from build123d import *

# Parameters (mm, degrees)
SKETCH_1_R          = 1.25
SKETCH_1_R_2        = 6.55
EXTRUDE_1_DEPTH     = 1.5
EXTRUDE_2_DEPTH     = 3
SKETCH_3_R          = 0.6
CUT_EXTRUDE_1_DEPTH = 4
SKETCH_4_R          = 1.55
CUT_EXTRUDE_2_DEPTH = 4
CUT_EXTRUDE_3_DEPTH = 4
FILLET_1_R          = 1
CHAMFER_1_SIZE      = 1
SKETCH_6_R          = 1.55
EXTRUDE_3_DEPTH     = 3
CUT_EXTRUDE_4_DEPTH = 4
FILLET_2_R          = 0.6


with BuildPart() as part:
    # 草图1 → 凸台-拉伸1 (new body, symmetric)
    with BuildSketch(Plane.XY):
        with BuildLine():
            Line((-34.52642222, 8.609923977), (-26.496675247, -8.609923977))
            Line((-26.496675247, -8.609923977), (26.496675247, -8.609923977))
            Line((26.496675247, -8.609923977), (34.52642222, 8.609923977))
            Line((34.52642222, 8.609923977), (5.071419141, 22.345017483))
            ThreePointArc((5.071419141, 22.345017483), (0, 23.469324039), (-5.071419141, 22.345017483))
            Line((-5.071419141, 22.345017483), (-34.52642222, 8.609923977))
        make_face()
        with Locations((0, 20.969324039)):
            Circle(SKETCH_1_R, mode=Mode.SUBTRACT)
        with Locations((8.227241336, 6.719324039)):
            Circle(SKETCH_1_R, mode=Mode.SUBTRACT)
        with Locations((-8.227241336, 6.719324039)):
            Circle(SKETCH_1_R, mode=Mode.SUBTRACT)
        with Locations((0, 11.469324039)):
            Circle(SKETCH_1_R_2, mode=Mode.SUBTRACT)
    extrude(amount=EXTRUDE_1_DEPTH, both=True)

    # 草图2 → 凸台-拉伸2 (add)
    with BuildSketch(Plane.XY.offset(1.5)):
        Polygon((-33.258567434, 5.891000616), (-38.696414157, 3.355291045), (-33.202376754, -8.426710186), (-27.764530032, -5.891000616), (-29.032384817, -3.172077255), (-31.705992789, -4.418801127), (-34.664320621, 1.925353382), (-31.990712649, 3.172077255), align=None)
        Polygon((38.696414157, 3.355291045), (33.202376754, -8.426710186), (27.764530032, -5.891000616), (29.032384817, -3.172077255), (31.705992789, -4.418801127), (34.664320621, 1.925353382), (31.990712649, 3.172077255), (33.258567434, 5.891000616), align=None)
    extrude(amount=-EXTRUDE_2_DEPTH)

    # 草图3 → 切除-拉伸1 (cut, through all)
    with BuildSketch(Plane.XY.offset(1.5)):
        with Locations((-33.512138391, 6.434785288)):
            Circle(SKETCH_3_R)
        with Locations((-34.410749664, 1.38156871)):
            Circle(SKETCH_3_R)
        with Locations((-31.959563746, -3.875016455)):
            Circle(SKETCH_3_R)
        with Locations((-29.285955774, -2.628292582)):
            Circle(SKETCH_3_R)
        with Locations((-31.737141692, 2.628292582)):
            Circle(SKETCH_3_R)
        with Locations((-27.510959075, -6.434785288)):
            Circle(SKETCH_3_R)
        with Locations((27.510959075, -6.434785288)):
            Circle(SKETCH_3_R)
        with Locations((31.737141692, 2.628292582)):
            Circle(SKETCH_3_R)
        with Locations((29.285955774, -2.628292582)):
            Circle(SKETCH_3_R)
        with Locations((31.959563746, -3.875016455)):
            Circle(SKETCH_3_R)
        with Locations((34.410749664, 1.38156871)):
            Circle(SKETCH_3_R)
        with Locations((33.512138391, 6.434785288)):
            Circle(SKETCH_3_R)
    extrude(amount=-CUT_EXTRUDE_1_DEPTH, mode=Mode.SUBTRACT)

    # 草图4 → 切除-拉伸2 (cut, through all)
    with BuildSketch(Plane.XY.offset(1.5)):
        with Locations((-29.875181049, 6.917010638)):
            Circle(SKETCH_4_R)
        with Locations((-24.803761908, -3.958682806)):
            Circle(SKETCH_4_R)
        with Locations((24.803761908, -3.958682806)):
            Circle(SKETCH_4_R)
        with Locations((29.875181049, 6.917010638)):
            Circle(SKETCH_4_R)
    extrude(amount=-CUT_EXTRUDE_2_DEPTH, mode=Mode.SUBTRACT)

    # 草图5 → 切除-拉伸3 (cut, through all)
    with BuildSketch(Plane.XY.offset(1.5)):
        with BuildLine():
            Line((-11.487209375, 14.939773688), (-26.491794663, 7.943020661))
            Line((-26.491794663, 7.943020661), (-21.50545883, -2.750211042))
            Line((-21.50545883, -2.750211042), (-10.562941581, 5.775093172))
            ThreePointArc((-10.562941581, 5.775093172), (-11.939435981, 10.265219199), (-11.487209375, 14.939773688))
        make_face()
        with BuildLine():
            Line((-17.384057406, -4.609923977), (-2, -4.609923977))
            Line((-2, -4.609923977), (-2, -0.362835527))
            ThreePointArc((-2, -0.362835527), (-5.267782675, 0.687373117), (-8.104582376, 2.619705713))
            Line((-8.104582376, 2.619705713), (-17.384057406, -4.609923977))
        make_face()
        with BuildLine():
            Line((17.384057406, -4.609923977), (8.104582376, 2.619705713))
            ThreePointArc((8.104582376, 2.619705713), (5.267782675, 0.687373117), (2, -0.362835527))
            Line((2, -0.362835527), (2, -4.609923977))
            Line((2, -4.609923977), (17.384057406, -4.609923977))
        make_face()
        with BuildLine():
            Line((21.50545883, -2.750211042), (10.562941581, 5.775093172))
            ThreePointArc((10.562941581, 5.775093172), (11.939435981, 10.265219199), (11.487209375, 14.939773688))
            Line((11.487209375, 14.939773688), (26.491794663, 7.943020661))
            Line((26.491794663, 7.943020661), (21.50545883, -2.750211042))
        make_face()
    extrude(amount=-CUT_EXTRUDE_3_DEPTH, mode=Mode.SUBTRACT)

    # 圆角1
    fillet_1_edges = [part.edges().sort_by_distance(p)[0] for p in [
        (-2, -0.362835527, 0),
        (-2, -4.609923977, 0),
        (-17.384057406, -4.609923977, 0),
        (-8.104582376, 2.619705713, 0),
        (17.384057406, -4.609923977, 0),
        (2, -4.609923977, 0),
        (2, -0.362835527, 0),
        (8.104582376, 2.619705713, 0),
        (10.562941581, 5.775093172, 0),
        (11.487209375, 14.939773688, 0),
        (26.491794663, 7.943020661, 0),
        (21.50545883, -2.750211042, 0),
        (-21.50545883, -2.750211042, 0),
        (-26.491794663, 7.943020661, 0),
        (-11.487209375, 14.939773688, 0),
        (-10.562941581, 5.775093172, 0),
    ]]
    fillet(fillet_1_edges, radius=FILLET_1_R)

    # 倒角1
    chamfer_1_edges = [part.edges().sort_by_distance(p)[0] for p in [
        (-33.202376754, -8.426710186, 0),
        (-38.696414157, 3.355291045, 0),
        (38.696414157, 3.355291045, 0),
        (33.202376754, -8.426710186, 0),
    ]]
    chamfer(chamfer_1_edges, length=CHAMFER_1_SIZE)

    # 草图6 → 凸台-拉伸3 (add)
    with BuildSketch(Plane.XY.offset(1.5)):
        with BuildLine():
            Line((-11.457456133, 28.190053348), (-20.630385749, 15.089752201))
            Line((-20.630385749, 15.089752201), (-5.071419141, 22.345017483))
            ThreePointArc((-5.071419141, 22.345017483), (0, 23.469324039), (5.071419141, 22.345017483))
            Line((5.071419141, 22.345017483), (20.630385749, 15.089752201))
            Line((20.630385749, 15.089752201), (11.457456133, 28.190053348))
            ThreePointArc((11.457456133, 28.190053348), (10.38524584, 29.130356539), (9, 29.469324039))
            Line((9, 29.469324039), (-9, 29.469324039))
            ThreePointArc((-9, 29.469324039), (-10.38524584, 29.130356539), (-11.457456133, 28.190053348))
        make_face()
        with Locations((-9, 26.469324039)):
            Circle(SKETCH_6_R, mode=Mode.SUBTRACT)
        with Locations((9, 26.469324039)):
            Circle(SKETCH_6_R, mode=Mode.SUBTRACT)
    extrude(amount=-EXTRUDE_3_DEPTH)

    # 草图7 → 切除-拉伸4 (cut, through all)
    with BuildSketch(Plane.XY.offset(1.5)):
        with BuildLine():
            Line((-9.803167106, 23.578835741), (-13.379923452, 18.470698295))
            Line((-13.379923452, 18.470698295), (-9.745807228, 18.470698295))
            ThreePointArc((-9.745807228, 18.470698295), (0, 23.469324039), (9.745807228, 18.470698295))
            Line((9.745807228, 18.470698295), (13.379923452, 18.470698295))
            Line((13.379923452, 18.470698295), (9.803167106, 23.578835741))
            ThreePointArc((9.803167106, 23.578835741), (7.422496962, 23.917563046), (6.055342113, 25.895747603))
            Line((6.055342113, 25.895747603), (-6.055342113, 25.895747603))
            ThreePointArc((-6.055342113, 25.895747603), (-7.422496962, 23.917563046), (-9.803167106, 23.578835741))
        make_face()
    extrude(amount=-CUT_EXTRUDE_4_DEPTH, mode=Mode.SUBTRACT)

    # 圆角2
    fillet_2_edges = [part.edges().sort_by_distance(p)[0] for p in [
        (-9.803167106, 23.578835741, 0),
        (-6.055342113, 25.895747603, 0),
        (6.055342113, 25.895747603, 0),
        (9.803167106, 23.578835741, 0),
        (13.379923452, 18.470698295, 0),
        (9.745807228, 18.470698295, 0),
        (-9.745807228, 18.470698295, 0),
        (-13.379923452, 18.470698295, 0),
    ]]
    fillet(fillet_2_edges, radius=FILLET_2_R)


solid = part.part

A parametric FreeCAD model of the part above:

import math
import FreeCAD as App
import Part
import Sketcher

V = App.Vector
Q = App.Units.Quantity


def edges_at(feature, points):
    """Names of the edges that pass closest to the given points."""
    edges = feature.Shape.Edges
    near = lambda p: min(range(len(edges)), key=lambda i: edges[i].distToShape(Part.Vertex(*p))[0])
    return sorted({f"Edge{near(p) + 1}" for p in points})


def add_polygon(sketch, points):
    """Adds a closed chain of lines whose ends are joined by coincident constraints."""
    first, n = sketch.GeometryCount, len(points)
    for a, b in zip(points, points[1:] + points[:1]):
        sketch.addGeometry(Part.LineSegment(App.Vector(*a, 0), App.Vector(*b, 0)), False)
    for i in range(n):
        sketch.addConstraint(Sketcher.Constraint("Coincident", first + i, 2, first + (i + 1) % n, 1))

doc = App.newDocument("Part")
body = doc.addObject("PartDesign::Body", "Body")

sketch1 = body.newObject("Sketcher::SketchObject", "Sketch")
sketch1.AttachmentSupport = (doc.getObject("XY_Plane"), [""])
sketch1.MapMode = "FlatFace"
sketch1.addGeometry([
    Part.LineSegment(V(-34.5, 8.6, 0), V(-26.5, -8.6, 0)),
    Part.LineSegment(V(-26.5, -8.6, 0), V(26.5, -8.6, 0)),
    Part.LineSegment(V(26.5, -8.6, 0), V(34.5, 8.6, 0)),
    Part.LineSegment(V(34.5, 8.6, 0), V(5.1, 22.3, 0)),
    Part.ArcOfCircle(Part.Circle(V(0, 11.5, 0), V(0, 0, 1), 12), math.radians(65), math.radians(115)),
    Part.LineSegment(V(-5.1, 22.3, 0), V(-34.5, 8.6, 0)),
    Part.Circle(V(-8.2, 6.7, 0), V(0, 0, 1), 1.2),
    Part.Circle(V(8.2, 6.7, 0), V(0, 0, 1), 1.2),
    Part.Circle(V(0, 11.5, 0), V(0, 0, 1), 6.5),
    Part.Circle(V(0, 21, 0), V(0, 0, 1), 1.2),
], False)
sketch1.addConstraint([
    Sketcher.Constraint("Coincident", 0, 2, 1, 1),
    Sketcher.Constraint("Coincident", 1, 2, 2, 1),
    Sketcher.Constraint("Coincident", 2, 2, 3, 1),
    Sketcher.Constraint("Tangent", 3, 2, 4, 1),
    Sketcher.Constraint("Tangent", 4, 2, 5, 1),
    Sketcher.Constraint("Coincident", 5, 2, 0, 1),
    Sketcher.Constraint("Horizontal", 1),
    Sketcher.Constraint("Coincident", 8, 3, 4, 3),
    Sketcher.Constraint("Equal", 6, 7),
    Sketcher.Constraint("Equal", 7, 9),
    Sketcher.Constraint("Symmetric", 6, 3, 7, 3, -2),
    Sketcher.Constraint("Symmetric", 3, 2, 4, 2, -2),
    Sketcher.Constraint("PointOnObject", 9, 3, -2),
    Sketcher.Constraint("Perpendicular", 2, 3),
    Sketcher.Constraint("Perpendicular", 0, 5),
    Sketcher.Constraint("Horizontal", 2, 2, 5, 2),
    Sketcher.Constraint("Radius", 4, 12.0),
    Sketcher.Constraint("Diameter", 6, 2.5),
    Sketcher.Constraint("Diameter", 8, 13.1),
    Sketcher.Constraint("Angle", 0, Q("-65 deg")),
    Sketcher.Constraint("Distance", 0, 19.0),
    Sketcher.Constraint("Distance", 3, 32.5),
    Sketcher.Constraint("DistanceY", 4, 3, 9, 3, 9.5),
    Sketcher.Constraint("DistanceY", 6, 3, 4, 3, 4.75),
    Sketcher.Constraint("DistanceX", 6, 3, -1, 1, 8.227241),
    Sketcher.Constraint("DistanceY", -1, 1, 4, 3, 11.469324),
])
pad1 = body.newObject("PartDesign::Pad", "Pad")
pad1.Profile = sketch1
pad1.Length = 3
pad1.Midplane = True

sketch2 = body.newObject("Sketcher::SketchObject", "Sketch001")
sketch2.AttachmentSupport = (doc.getObject("XY_Plane"), [""])
sketch2.MapMode = "FlatFace"
sketch2.AttachmentOffset = App.Placement(V(0, 0, 1.5), App.Rotation())
add_polygon(sketch2, [(-33.3, 5.9), (-38.7, 3.4), (-33.2, -8.4), (-27.8, -5.9), (-29, -3.2), (-31.7, -4.4), (-34.7, 1.9), (-32, 3.2)])
add_polygon(sketch2, [(33.2, -8.4), (38.7, 3.4), (33.3, 5.9), (32, 3.2), (34.7, 1.9), (31.7, -4.4), (29, -3.2), (27.8, -5.9)])
sketch2.addConstraint([
    Sketcher.Constraint("Symmetric", 0, 2, 8, 2, -2),
    Sketcher.Constraint("Symmetric", 7, 2, 9, 2, -2),
    Sketcher.Constraint("Symmetric", 6, 2, 10, 2, -2),
    Sketcher.Constraint("Symmetric", 5, 2, 11, 2, -2),
    Sketcher.Constraint("Symmetric", 4, 2, 12, 2, -2),
    Sketcher.Constraint("Symmetric", 3, 2, 13, 2, -2),
    Sketcher.Constraint("Symmetric", 2, 2, 14, 2, -2),
    Sketcher.Constraint("Symmetric", 1, 2, 15, 2, -2),
    Sketcher.Constraint("Perpendicular", 0, 1),
    Sketcher.Constraint("Perpendicular", 1, 2),
    Sketcher.Constraint("Perpendicular", 2, 3),
    Sketcher.Constraint("Perpendicular", 3, 4),
    Sketcher.Constraint("Perpendicular", 4, 5),
    Sketcher.Constraint("Perpendicular", 5, 6),
    Sketcher.Constraint("Perpendicular", 6, 7),
    Sketcher.Constraint("Equal", 0, 2),
    Sketcher.Constraint("Equal", 3, 7),
    Sketcher.Constraint("Angle", 0, Q("-155 deg")),
    Sketcher.Constraint("Distance", 0, 6.0),
    Sketcher.Constraint("Distance", 1, 13.0),
    Sketcher.Constraint("Distance", 3, 3.0),
    Sketcher.Constraint("Distance", 4, 2.95),
    Sketcher.Constraint("DistanceY", 2, 2, -1, 1, 5.891001),
    Sketcher.Constraint("DistanceX", 3, 2, 8, 2, 67.728799),
])
pad2 = body.newObject("PartDesign::Pad", "Pad001")
pad2.Profile = sketch2
pad2.Length = 3
pad2.Reversed = True

sketch3 = body.newObject("Sketcher::SketchObject", "Sketch002")
sketch3.AttachmentSupport = (doc.getObject("XY_Plane"), [""])
sketch3.MapMode = "FlatFace"
sketch3.AttachmentOffset = App.Placement(V(0, 0, 1.5), App.Rotation())
sketch3.addGeometry([
    Part.Circle(V(-33.5, 6.4, 0), V(0, 0, 1), 0.6),
    Part.Circle(V(-34.4, 1.4, 0), V(0, 0, 1), 0.6),
    Part.Circle(V(-32, -3.9, 0), V(0, 0, 1), 0.6),
    Part.Circle(V(-29.3, -2.6, 0), V(0, 0, 1), 0.6),
    Part.Circle(V(-31.7, 2.6, 0), V(0, 0, 1), 0.6),
    Part.Circle(V(-27.5, -6.4, 0), V(0, 0, 1), 0.6),
    Part.Circle(V(27.5, -6.4, 0), V(0, 0, 1), 0.6),
    Part.Circle(V(31.7, 2.6, 0), V(0, 0, 1), 0.6),
    Part.Circle(V(29.3, -2.6, 0), V(0, 0, 1), 0.6),
    Part.Circle(V(32, -3.9, 0), V(0, 0, 1), 0.6),
    Part.Circle(V(34.4, 1.4, 0), V(0, 0, 1), 0.6),
    Part.Circle(V(33.5, 6.4, 0), V(0, 0, 1), 0.6),
], False)
sketch3.addConstraint([
    Sketcher.Constraint("Equal", 0, 1),
    Sketcher.Constraint("Equal", 1, 2),
    Sketcher.Constraint("Equal", 2, 3),
    Sketcher.Constraint("Equal", 3, 4),
    Sketcher.Constraint("Equal", 4, 5),
    Sketcher.Constraint("Equal", 5, 6),
    Sketcher.Constraint("Equal", 6, 7),
    Sketcher.Constraint("Equal", 7, 8),
    Sketcher.Constraint("Equal", 8, 9),
    Sketcher.Constraint("Equal", 9, 10),
    Sketcher.Constraint("Equal", 10, 11),
    Sketcher.Constraint("Symmetric", 5, 3, 6, 3, -2),
    Sketcher.Constraint("Symmetric", 4, 3, 7, 3, -2),
    Sketcher.Constraint("Symmetric", 3, 3, 8, 3, -2),
    Sketcher.Constraint("Symmetric", 2, 3, 9, 3, -2),
    Sketcher.Constraint("Symmetric", 1, 3, 10, 3, -2),
    Sketcher.Constraint("Symmetric", 0, 3, 11, 3, -2),
    Sketcher.Constraint("Diameter", 0, 1.2),
    Sketcher.Constraint("DistanceY", 2, 3, 0, 3, 10.309802),
    Sketcher.Constraint("DistanceX", 4, 3, 6, 3, 59.248101),
    Sketcher.Constraint("DistanceX", 0, 3, -1, 1, 33.512138),
    Sketcher.Constraint("DistanceX", 1, 3, -1, 1, 34.41075),
    Sketcher.Constraint("DistanceY", -1, 1, 1, 3, 1.381569),
    Sketcher.Constraint("DistanceX", 4, 3, -1, 1, 31.737142),
    Sketcher.Constraint("DistanceY", 3, 3, 1, 3, 4.009861),
    Sketcher.Constraint("DistanceY", 2, 3, 4, 3, 6.503309),
    Sketcher.Constraint("DistanceY", 5, 3, 2, 3, 2.559769),
    Sketcher.Constraint("DistanceX", 3, 3, 8, 3, 58.571912),
    Sketcher.Constraint("DistanceX", 3, 3, 9, 3, 61.24552),
    Sketcher.Constraint("DistanceY", -1, 1, 0, 3, 6.434785),
])
pocket1 = body.newObject("PartDesign::Pocket", "Pocket")
pocket1.Profile = sketch3
pocket1.Type = "ThroughAll"

sketch4 = body.newObject("Sketcher::SketchObject", "Sketch003")
sketch4.AttachmentSupport = (doc.getObject("XY_Plane"), [""])
sketch4.MapMode = "FlatFace"
sketch4.AttachmentOffset = App.Placement(V(0, 0, 1.5), App.Rotation())
sketch4.addGeometry([
    Part.Circle(V(-29.9, 6.9, 0), V(0, 0, 1), 1.6),
    Part.Circle(V(-24.8, -4, 0), V(0, 0, 1), 1.6),
    Part.Circle(V(24.8, -4, 0), V(0, 0, 1), 1.6),
    Part.Circle(V(29.9, 6.9, 0), V(0, 0, 1), 1.6),
], False)
sketch4.addConstraint([
    Sketcher.Constraint("Equal", 0, 1),
    Sketcher.Constraint("Equal", 1, 2),
    Sketcher.Constraint("Equal", 2, 3),
    Sketcher.Constraint("Symmetric", 1, 3, 2, 3, -2),
    Sketcher.Constraint("Symmetric", 0, 3, 3, 3, -2),
    Sketcher.Constraint("Diameter", 0, 3.1),
    Sketcher.Constraint("DistanceX", 0, 3, -1, 1, 29.875181),
    Sketcher.Constraint("DistanceY", -1, 1, 0, 3, 6.917011),
    Sketcher.Constraint("DistanceX", 1, 3, -1, 1, 24.803762),
    Sketcher.Constraint("DistanceY", 1, 3, -1, 1, 3.958683),
])
pocket2 = body.newObject("PartDesign::Pocket", "Pocket001")
pocket2.Profile = sketch4
pocket2.Type = "ThroughAll"

sketch5 = body.newObject("Sketcher::SketchObject", "Sketch004")
sketch5.AttachmentSupport = (doc.getObject("XY_Plane"), [""])
sketch5.MapMode = "FlatFace"
sketch5.AttachmentOffset = App.Placement(V(0, 0, 1.5), App.Rotation())
sketch5.addGeometry([
    Part.LineSegment(V(-11.5, 14.9, 0), V(-26.5, 7.9, 0)),
    Part.LineSegment(V(-26.5, 7.9, 0), V(-21.5, -2.8, 0)),
    Part.LineSegment(V(-21.5, -2.8, 0), V(-10.6, 5.8, 0)),
    Part.ArcOfCircle(Part.Circle(V(0, 11.5, 0), V(0, 0, 1), 12), math.radians(163), math.radians(208)),
    Part.LineSegment(V(-17.4, -4.6, 0), V(-2, -4.6, 0)),
    Part.LineSegment(V(-2, -4.6, 0), V(-2, -0.4, 0)),
    Part.ArcOfCircle(Part.Circle(V(0, 11.5, 0), V(0, 0, 1), 12), math.radians(-132), math.radians(-100)),
    Part.LineSegment(V(-8.1, 2.6, 0), V(-17.4, -4.6, 0)),
    Part.LineSegment(V(17.4, -4.6, 0), V(8.1, 2.6, 0)),
    Part.ArcOfCircle(Part.Circle(V(0, 11.5, 0), V(0, 0, 1), 12), math.radians(-80), math.radians(-48)),
    Part.LineSegment(V(2, -0.4, 0), V(2, -4.6, 0)),
    Part.LineSegment(V(2, -4.6, 0), V(17.4, -4.6, 0)),
    Part.LineSegment(V(10.6, 5.8, 0), V(21.5, -2.8, 0)),
    Part.LineSegment(V(21.5, -2.8, 0), V(26.5, 7.9, 0)),
    Part.LineSegment(V(26.5, 7.9, 0), V(11.5, 14.9, 0)),
    Part.ArcOfCircle(Part.Circle(V(0, 11.5, 0), V(0, 0, 1), 12), math.radians(-28), math.radians(17)),
], False)
sketch5.addConstraint([
    Sketcher.Constraint("Coincident", 0, 2, 1, 1),
    Sketcher.Constraint("Coincident", 1, 2, 2, 1),
    Sketcher.Constraint("Coincident", 2, 2, 3, 2),
    Sketcher.Constraint("Coincident", 3, 1, 0, 1),
    Sketcher.Constraint("Coincident", 4, 2, 5, 1),
    Sketcher.Constraint("Coincident", 5, 2, 6, 2),
    Sketcher.Constraint("Coincident", 6, 1, 7, 1),
    Sketcher.Constraint("Coincident", 7, 2, 4, 1),
    Sketcher.Constraint("Coincident", 8, 2, 9, 2),
    Sketcher.Constraint("Coincident", 9, 1, 10, 1),
    Sketcher.Constraint("Coincident", 10, 2, 11, 1),
    Sketcher.Constraint("Coincident", 11, 2, 8, 1),
    Sketcher.Constraint("Coincident", 12, 2, 13, 1),
    Sketcher.Constraint("Coincident", 13, 2, 14, 1),
    Sketcher.Constraint("Coincident", 14, 2, 15, 2),
    Sketcher.Constraint("Coincident", 15, 1, 12, 1),
    Sketcher.Constraint("Horizontal", 4),
    Sketcher.Constraint("Vertical", 5),
    Sketcher.Constraint("Vertical", 10),
    Sketcher.Constraint("Horizontal", 11),
    Sketcher.Constraint("Coincident", 6, 3, 3, 3),
    Sketcher.Constraint("Coincident", 9, 3, 3, 3),
    Sketcher.Constraint("Coincident", 15, 3, 3, 3),
    Sketcher.Constraint("Equal", 3, 6),
    Sketcher.Constraint("Equal", 6, 9),
    Sketcher.Constraint("Equal", 9, 15),
    Sketcher.Constraint("Symmetric", 6, 1, 8, 2, -2),
    Sketcher.Constraint("Symmetric", 4, 2, 10, 2, -2),
    Sketcher.Constraint("Symmetric", 1, 2, 12, 2, -2),
    Sketcher.Constraint("Symmetric", 0, 2, 13, 2, -2),
    Sketcher.Constraint("Perpendicular", 0, 1),
    Sketcher.Constraint("Parallel", 2, 7),
    Sketcher.Constraint("Parallel", 8, 12),
    Sketcher.Constraint("Perpendicular", 13, 14),
    Sketcher.Constraint("Horizontal", 2, 2, 15, 1),
    Sketcher.Constraint("Radius", 3, 12.0),
    Sketcher.Constraint("Angle", 0, Q("-155 deg")),
    Sketcher.Constraint("DistanceX", 4, 2, -1, 1, 2.0),
    Sketcher.Constraint("DistanceY", 5, 1, 5, 2, 4.247088),
    Sketcher.Constraint("DistanceX", 1, 2, 7, 2, 4.121401),
    Sketcher.Constraint("Distance", 0, 16.555728),
    Sketcher.Constraint("Distance", 7, 11.763341),
    Sketcher.Constraint("DistanceX", 4, 1, 4, 2, 15.384057),
    Sketcher.Constraint("DistanceY", -1, 1, 0, 2, 7.943021),
    Sketcher.Constraint("DistanceY", 1, 2, -1, 1, 2.750211),
])
pocket3 = body.newObject("PartDesign::Pocket", "Pocket002")
pocket3.Profile = sketch5
pocket3.Type = "ThroughAll"
doc.recompute()

fillet = body.newObject("PartDesign::Fillet", "Fillet")
fillet.Base = (pocket3, edges_at(pocket3, [
    (-2, -0.363, 0),
    (-2, -4.61, 0),
    (-17.384, -4.61, 0),
    (-8.105, 2.62, 0),
    (17.384, -4.61, 0),
    (2, -4.61, 0),
    (2, -0.363, 0),
    (8.105, 2.62, 0),
    (10.563, 5.775, 0),
    (11.487, 14.94, 0),
    (26.492, 7.943, 0),
    (21.505, -2.75, 0),
    (-21.505, -2.75, 0),
    (-26.492, 7.943, 0),
    (-11.487, 14.94, 0),
    (-10.563, 5.775, 0),
]))
fillet.Radius = 1
doc.recompute()

chamfer = body.newObject("PartDesign::Chamfer", "Chamfer")
chamfer.Base = (fillet, edges_at(fillet, [
    (-33.202, -8.427, 0),
    (-38.696, 3.355, 0),
    (38.696, 3.355, 0),
    (33.202, -8.427, 0),
]))
chamfer.Size = 1

sketch6 = body.newObject("Sketcher::SketchObject", "Sketch005")
sketch6.AttachmentSupport = (doc.getObject("XY_Plane"), [""])
sketch6.MapMode = "FlatFace"
sketch6.AttachmentOffset = App.Placement(V(0, 0, 1.5), App.Rotation())
sketch6.addGeometry([
    Part.LineSegment(V(-11.5, 28.2, 0), V(-20.6, 15.1, 0)),
    Part.LineSegment(V(-20.6, 15.1, 0), V(-5.1, 22.3, 0)),
    Part.ArcOfCircle(Part.Circle(V(0, 11.5, 0), V(0, 0, 1), 12), math.radians(65), math.radians(115)),
    Part.LineSegment(V(5.1, 22.3, 0), V(20.6, 15.1, 0)),
    Part.LineSegment(V(20.6, 15.1, 0), V(11.5, 28.2, 0)),
    Part.ArcOfCircle(Part.Circle(V(9, 26.5, 0), V(0, 0, 1), 3), math.radians(35), math.radians(90)),
    Part.LineSegment(V(9, 29.5, 0), V(-9, 29.5, 0)),
    Part.ArcOfCircle(Part.Circle(V(-9, 26.5, 0), V(0, 0, 1), 3), math.radians(90), math.radians(145)),
    Part.Circle(V(-9, 26.5, 0), V(0, 0, 1), 1.6),
    Part.Circle(V(9, 26.5, 0), V(0, 0, 1), 1.6),
], False)
sketch6.addConstraint([
    Sketcher.Constraint("Coincident", 0, 2, 1, 1),
    Sketcher.Constraint("Tangent", 1, 2, 2, 2),
    Sketcher.Constraint("Tangent", 2, 1, 3, 1),
    Sketcher.Constraint("Coincident", 3, 2, 4, 1),
    Sketcher.Constraint("Tangent", 4, 2, 5, 1),
    Sketcher.Constraint("Tangent", 5, 2, 6, 1),
    Sketcher.Constraint("Tangent", 6, 2, 7, 1),
    Sketcher.Constraint("Tangent", 7, 2, 0, 1),
    Sketcher.Constraint("Horizontal", 6),
    Sketcher.Constraint("Coincident", 8, 3, 7, 3),
    Sketcher.Constraint("Coincident", 9, 3, 5, 3),
    Sketcher.Constraint("Equal", 5, 7),
    Sketcher.Constraint("Equal", 8, 9),
    Sketcher.Constraint("Symmetric", 1, 2, 2, 1, -2),
    Sketcher.Constraint("Symmetric", 4, 2, 7, 2, -2),
    Sketcher.Constraint("Radius", 2, 12.0),
    Sketcher.Constraint("Radius", 5, 3.0),
    Sketcher.Constraint("Diameter", 8, 3.1),
    Sketcher.Constraint("DistanceX", 6, 2, 6, 1, 18.0),
    Sketcher.Constraint("Angle", 0, Q("-125 deg")),
    Sketcher.Constraint("Angle", 1, Q("25 deg")),
    Sketcher.Constraint("DistanceY", 2, 3, 5, 3, 15.0),
    Sketcher.Constraint("DistanceY", -1, 1, 2, 3, 11.469324),
])
pad3 = body.newObject("PartDesign::Pad", "Pad002")
pad3.Profile = sketch6
pad3.Length = 3
pad3.Reversed = True

sketch7 = body.newObject("Sketcher::SketchObject", "Sketch006")
sketch7.AttachmentSupport = (doc.getObject("XY_Plane"), [""])
sketch7.MapMode = "FlatFace"
sketch7.AttachmentOffset = App.Placement(V(0, 0, 1.5), App.Rotation())
sketch7.addGeometry([
    Part.LineSegment(V(-9.8, 23.6, 0), V(-13.4, 18.5, 0)),
    Part.LineSegment(V(-13.4, 18.5, 0), V(-9.7, 18.5, 0)),
    Part.ArcOfCircle(Part.Circle(V(0, 11.5, 0), V(0, 0, 1), 12), math.radians(36), math.radians(144)),
    Part.LineSegment(V(9.7, 18.5, 0), V(13.4, 18.5, 0)),
    Part.LineSegment(V(13.4, 18.5, 0), V(9.8, 23.6, 0)),
    Part.ArcOfCircle(Part.Circle(V(9, 26.5, 0), V(0, 0, 1), 3), math.radians(-169), math.radians(-74)),
    Part.LineSegment(V(6.1, 25.9, 0), V(-6.1, 25.9, 0)),
    Part.ArcOfCircle(Part.Circle(V(-9, 26.5, 0), V(0, 0, 1), 3), math.radians(-106), math.radians(-11)),
], False)
sketch7.addConstraint([
    Sketcher.Constraint("Coincident", 0, 2, 1, 1),
    Sketcher.Constraint("Coincident", 1, 2, 2, 2),
    Sketcher.Constraint("Coincident", 2, 1, 3, 1),
    Sketcher.Constraint("Coincident", 3, 2, 4, 1),
    Sketcher.Constraint("Coincident", 4, 2, 5, 2),
    Sketcher.Constraint("Coincident", 5, 1, 6, 1),
    Sketcher.Constraint("Coincident", 6, 2, 7, 2),
    Sketcher.Constraint("Coincident", 7, 1, 0, 1),
    Sketcher.Constraint("Horizontal", 1),
    Sketcher.Constraint("Horizontal", 3),
    Sketcher.Constraint("Horizontal", 6),
    Sketcher.Constraint("Equal", 5, 7),
    Sketcher.Constraint("Symmetric", 5, 3, 7, 3, -2),
    Sketcher.Constraint("Symmetric", 1, 2, 2, 1, -2),
    Sketcher.Constraint("Horizontal", 4, 2, 7, 1),
    Sketcher.Constraint("Equal", 1, 3),
    Sketcher.Constraint("Radius", 2, 12.0),
    Sketcher.Constraint("Radius", 5, 3.0),
    Sketcher.Constraint("Angle", 0, Q("-125 deg")),
    Sketcher.Constraint("DistanceX", -1, 1, 5, 3, 9.0),
    Sketcher.Constraint("DistanceY", 2, 3, 5, 3, 15.0),
    Sketcher.Constraint("DistanceY", -1, 1, 0, 2, 18.470698),
    Sketcher.Constraint("DistanceX", 1, 1, 1, 2, 3.634116),
    Sketcher.Constraint("DistanceX", 6, 2, 6, 1, 12.110684),
    Sketcher.Constraint("DistanceX", 0, 2, 2, 1, 23.125731),
])
pocket4 = body.newObject("PartDesign::Pocket", "Pocket003")
pocket4.Profile = sketch7
pocket4.Type = "ThroughAll"
doc.recompute()

fillet2 = body.newObject("PartDesign::Fillet", "Fillet001")
fillet2.Base = (pocket4, edges_at(pocket4, [
    (-9.803, 23.579, 0),
    (-6.055, 25.896, 0),
    (6.055, 25.896, 0),
    (9.803, 23.579, 0),
    (13.38, 18.471, 0),
    (9.746, 18.471, 0),
    (-9.746, 18.471, 0),
    (-13.38, 18.471, 0),
]))
fillet2.Radius = 0.6

doc.recompute()
